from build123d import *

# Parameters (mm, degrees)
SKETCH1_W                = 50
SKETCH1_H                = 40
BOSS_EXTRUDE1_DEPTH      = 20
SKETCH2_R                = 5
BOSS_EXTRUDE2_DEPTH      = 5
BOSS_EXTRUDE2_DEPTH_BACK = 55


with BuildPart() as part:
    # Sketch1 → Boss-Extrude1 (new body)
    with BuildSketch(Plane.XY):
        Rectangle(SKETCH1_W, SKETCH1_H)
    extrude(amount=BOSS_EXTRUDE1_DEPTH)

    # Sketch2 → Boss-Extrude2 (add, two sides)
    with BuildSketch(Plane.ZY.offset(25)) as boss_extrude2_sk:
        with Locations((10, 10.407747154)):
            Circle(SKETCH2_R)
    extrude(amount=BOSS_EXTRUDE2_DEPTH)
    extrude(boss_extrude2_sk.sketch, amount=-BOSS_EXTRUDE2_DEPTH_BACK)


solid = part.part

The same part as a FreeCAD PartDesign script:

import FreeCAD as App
import Part
import Sketcher


def add_polygon(sketch, points):
    """Adds a closed chain of lines whose ends are joined by coincident constraints."""
    first, n = sketch.GeometryCount, len(points)
    for a, b in zip(points, points[1:] + points[:1]):
        sketch.addGeometry(Part.LineSegment(App.Vector(*a, 0), App.Vector(*b, 0)), False)
    for i in range(n):
        sketch.addConstraint(Sketcher.Constraint("Coincident", first + i, 2, first + (i + 1) % n, 1))

doc = App.newDocument("Part")
body = doc.addObject("PartDesign::Body", "Body")

# Sketch on XY plane
sketch1 = body.newObject("Sketcher::SketchObject", "Sketch")
sketch1.AttachmentSupport = (doc.getObject("XY_Plane"), [""])
sketch1.MapMode = "FlatFace"
add_polygon(sketch1, [(-25, 20), (-25, -20), (25, -20), (25, 20)])  # lines 0-3
sketch1.addConstraint([
    Sketcher.Constraint("Vertical", 0),
    Sketcher.Constraint("Horizontal", 1),
    Sketcher.Constraint("Vertical", 2),
    Sketcher.Constraint("Horizontal", 3),
    Sketcher.Constraint("Symmetric", 0, 2, 2, 2, -1, 1),
    Sketcher.Constraint("DistanceX", 1, 1, 1, 2, 50.0),
    Sketcher.Constraint("DistanceY", 0, 2, 0, 1, 40.0),
])
pad1 = body.newObject("PartDesign::Pad", "Pad")
pad1.Profile = sketch1
pad1.Length = 20

# Sketch on YZ plane
sketch2 = body.newObject("Sketcher::SketchObject", "Sketch001")
sketch2.AttachmentSupport = (doc.getObject("YZ_Plane"), [""])
sketch2.MapMode = "FlatFace"
sketch2.AttachmentOffset = App.Placement(App.Vector(0, 0, -25), App.Rotation())
sketch2.addGeometry(Part.Circle(App.Vector(10.407747, 10, 0), App.Vector(0, 0, 1), 5), False)
sketch2.addConstraint([
    Sketcher.Constraint("Diameter", 0, 10.0),
    Sketcher.Constraint("DistanceY", -1, 1, 0, 3, 10.0),
    Sketcher.Constraint("DistanceX", -1, 1, 0, 3, 10.407747),
])
pad2 = body.newObject("PartDesign::Pad", "Pad001")
pad2.Profile = sketch2
pad2.Type = "TwoLengths"
pad2.Length = 5
pad2.Length2 = 55
pad2.Reversed = True

doc.recompute()
